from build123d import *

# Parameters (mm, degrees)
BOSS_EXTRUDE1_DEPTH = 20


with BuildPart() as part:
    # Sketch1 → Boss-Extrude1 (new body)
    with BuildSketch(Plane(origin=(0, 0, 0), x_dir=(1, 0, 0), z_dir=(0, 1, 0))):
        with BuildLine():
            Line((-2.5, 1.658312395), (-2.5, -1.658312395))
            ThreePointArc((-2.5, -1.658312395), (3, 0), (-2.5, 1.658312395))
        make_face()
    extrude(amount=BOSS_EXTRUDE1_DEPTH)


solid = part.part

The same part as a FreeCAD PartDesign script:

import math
import FreeCAD as App
import Part
import Sketcher
from FreeCAD import Vector

doc = App.newDocument("Part")
body = doc.addObject("PartDesign::Body", "Body")

# Sketch on XZ plane
sketch1 = doc.addObject("Sketcher::SketchObject", "Sketch")
body.addObject(sketch1)
sketch1.AttachmentSupport = (doc.XZ_Plane, [""])
sketch1.MapMode = "FlatFace"
sketch1.addGeometry(Part.LineSegment(Vector(-2.5, -1.7, 0), Vector(-2.5, 1.7, 0)), False)
sketch1.addGeometry(Part.ArcOfCircle(Part.Circle(Vector(0, 0, 0), Vector(0, 0, 1), 3), math.radians(-146), math.radians(146)), False)
sketch1.addConstraint(Sketcher.Constraint("Coincident", 0, 1, 1, 1))
sketch1.addConstraint(Sketcher.Constraint("Coincident", 1, 2, 0, 2))
sketch1.addConstraint(Sketcher.Constraint("Vertical", 0))
sketch1.addConstraint(Sketcher.Constraint("Coincident", 1, 3, -1, 1))
sketch1.addConstraint(Sketcher.Constraint("Radius", 1, 3.0))
sketch1.addConstraint(Sketcher.Constraint("DistanceX", 0, 1, -1, 1, 2.5))
pad1 = doc.addObject("PartDesign::Pad", "Pad")
body.addObject(pad1)
pad1.Profile = sketch1
pad1.Length = 20
pad1.Reversed = True

doc.recompute()
